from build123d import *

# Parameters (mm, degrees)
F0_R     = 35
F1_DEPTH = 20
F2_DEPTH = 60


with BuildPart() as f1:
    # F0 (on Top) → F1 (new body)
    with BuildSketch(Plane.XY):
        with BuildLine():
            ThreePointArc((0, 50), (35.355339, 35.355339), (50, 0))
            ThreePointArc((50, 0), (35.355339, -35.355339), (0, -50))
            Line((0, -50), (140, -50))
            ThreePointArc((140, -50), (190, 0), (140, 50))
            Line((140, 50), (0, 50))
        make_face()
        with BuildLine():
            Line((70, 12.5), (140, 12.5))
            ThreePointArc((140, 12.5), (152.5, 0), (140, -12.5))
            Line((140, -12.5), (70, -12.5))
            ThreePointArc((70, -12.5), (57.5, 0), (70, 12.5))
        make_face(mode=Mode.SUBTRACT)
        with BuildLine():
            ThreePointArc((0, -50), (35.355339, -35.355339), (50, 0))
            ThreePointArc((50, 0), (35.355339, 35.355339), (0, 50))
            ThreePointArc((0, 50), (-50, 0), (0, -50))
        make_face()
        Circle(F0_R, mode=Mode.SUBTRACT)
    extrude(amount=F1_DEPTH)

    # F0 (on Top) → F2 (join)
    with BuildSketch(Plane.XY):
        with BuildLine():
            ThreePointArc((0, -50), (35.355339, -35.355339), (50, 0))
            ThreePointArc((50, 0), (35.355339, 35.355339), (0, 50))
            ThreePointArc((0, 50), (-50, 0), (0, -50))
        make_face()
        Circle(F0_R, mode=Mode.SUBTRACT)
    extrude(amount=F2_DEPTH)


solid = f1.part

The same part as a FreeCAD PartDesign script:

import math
import FreeCAD as App
import Part
import Sketcher
Q = App.Units.Quantity

doc = App.newDocument("Part")
body = doc.addObject("PartDesign::Body", "Body")

sketch1 = body.newObject("Sketcher::SketchObject", "Sketch")
sketch1.AttachmentSupport = (doc.getObject("XY_Plane"), [""])
sketch1.MapMode = "FlatFace"
sketch1.addGeometry(Part.LineSegment(App.Vector(140, 50, 0), App.Vector(0, 50, 0)), False)
sketch1.addGeometry(Part.ArcOfCircle(Part.Circle(App.Vector(0, 0, 0), App.Vector(0, 0, 1), 50), math.radians(90), math.radians(270)), False)
sketch1.addGeometry(Part.LineSegment(App.Vector(0, -50, 0), App.Vector(140, -50, 0)), False)
sketch1.addGeometry(Part.ArcOfCircle(Part.Circle(App.Vector(140, 0, 0), App.Vector(0, 0, 1), 50), math.radians(-90), math.radians(90)), False)
sketch1.addGeometry(Part.Circle(App.Vector(0, 0, 0), App.Vector(0, 0, 1), 35), False)
sketch1.addGeometry(Part.ArcOfCircle(Part.Circle(App.Vector(70, 0, 0), App.Vector(0, 0, 1), 12), math.radians(90), math.radians(270)), False)
sketch1.addGeometry(Part.LineSegment(App.Vector(70, 12, 0), App.Vector(140, 12, 0)), False)
sketch1.addGeometry(Part.ArcOfCircle(Part.Circle(App.Vector(140, 0, 0), App.Vector(0, 0, 1), 12), math.radians(-90), math.radians(90)), False)
sketch1.addGeometry(Part.LineSegment(App.Vector(140, -12, 0), App.Vector(70, -12, 0)), False)
sketch1.addConstraint(Sketcher.Constraint("Tangent", 0, 2, 1, 1))
sketch1.addConstraint(Sketcher.Constraint("Tangent", 1, 2, 2, 1))
sketch1.addConstraint(Sketcher.Constraint("Tangent", 2, 2, 3, 1))
sketch1.addConstraint(Sketcher.Constraint("Tangent", 3, 2, 0, 1))
sketch1.addConstraint(Sketcher.Constraint("Tangent", 5, 1, 6, 1))
sketch1.addConstraint(Sketcher.Constraint("Tangent", 6, 2, 7, 2))
sketch1.addConstraint(Sketcher.Constraint("Tangent", 7, 1, 8, 1))
sketch1.addConstraint(Sketcher.Constraint("Tangent", 8, 2, 5, 2))
sketch1.addConstraint(Sketcher.Constraint("Horizontal", 0))
sketch1.addConstraint(Sketcher.Constraint("Horizontal", 2))
sketch1.addConstraint(Sketcher.Constraint("Horizontal", 6))
sketch1.addConstraint(Sketcher.Constraint("Horizontal", 8))
sketch1.addConstraint(Sketcher.Constraint("Coincident", 1, 3, -1, 1))
sketch1.addConstraint(Sketcher.Constraint("Coincident", 4, 3, -1, 1))
sketch1.addConstraint(Sketcher.Constraint("Coincident", 7, 3, 3, 3))
sketch1.addConstraint(Sketcher.Constraint("Diameter", 4, Q("70 mm")))
sketch1.addConstraint(Sketcher.Constraint("Radius", 1, Q("50 mm")))
sketch1.addConstraint(Sketcher.Constraint("Radius", 5, Q("12.5 mm")))
sketch1.addConstraint(Sketcher.Constraint("DistanceX", 0, 2, 0, 1, Q("140 mm")))
sketch1.addConstraint(Sketcher.Constraint("DistanceX", 6, 1, 6, 2, Q("70 mm")))
pad1 = body.newObject("PartDesign::Pad", "Pad")
pad1.Profile = sketch1
pad1.Length = 20

sketch2 = body.newObject("Sketcher::SketchObject", "Sketch001")
sketch2.AttachmentSupport = (doc.getObject("XY_Plane"), [""])
sketch2.MapMode = "FlatFace"
sketch2.addGeometry(Part.ArcOfCircle(Part.Circle(App.Vector(0, 0, 0), App.Vector(0, 0, 1), 50), math.radians(-90), math.radians(0)), False)
sketch2.addGeometry(Part.ArcOfCircle(Part.Circle(App.Vector(0, 0, 0), App.Vector(0, 0, 1), 50), math.radians(0), math.radians(90)), False)
sketch2.addGeometry(Part.ArcOfCircle(Part.Circle(App.Vector(0, 0, 0), App.Vector(0, 0, 1), 50), math.radians(90), math.radians(270)), False)
sketch2.addGeometry(Part.Circle(App.Vector(0, 0, 0), App.Vector(0, 0, 1), 35), False)
sketch2.addConstraint(Sketcher.Constraint("Tangent", 0, 2, 1, 1))
sketch2.addConstraint(Sketcher.Constraint("Tangent", 1, 2, 2, 1))
sketch2.addConstraint(Sketcher.Constraint("Tangent", 2, 2, 0, 1))
sketch2.addConstraint(Sketcher.Constraint("Coincident", 0, 3, -1, 1))
sketch2.addConstraint(Sketcher.Constraint("Coincident", 3, 3, -1, 1))
sketch2.addConstraint(Sketcher.Constraint("PointOnObject", 0, 2, -1))
sketch2.addConstraint(Sketcher.Constraint("PointOnObject", 1, 2, -2))
sketch2.addConstraint(Sketcher.Constraint("PointOnObject", 2, 2, -2))
sketch2.addConstraint(Sketcher.Constraint("Diameter", 3, Q("70 mm")))
sketch2.addConstraint(Sketcher.Constraint("Radius", 0, Q("50 mm")))
pad2 = body.newObject("PartDesign::Pad", "Pad001")
pad2.Profile = sketch2
pad2.Length = 60

doc.recompute()
